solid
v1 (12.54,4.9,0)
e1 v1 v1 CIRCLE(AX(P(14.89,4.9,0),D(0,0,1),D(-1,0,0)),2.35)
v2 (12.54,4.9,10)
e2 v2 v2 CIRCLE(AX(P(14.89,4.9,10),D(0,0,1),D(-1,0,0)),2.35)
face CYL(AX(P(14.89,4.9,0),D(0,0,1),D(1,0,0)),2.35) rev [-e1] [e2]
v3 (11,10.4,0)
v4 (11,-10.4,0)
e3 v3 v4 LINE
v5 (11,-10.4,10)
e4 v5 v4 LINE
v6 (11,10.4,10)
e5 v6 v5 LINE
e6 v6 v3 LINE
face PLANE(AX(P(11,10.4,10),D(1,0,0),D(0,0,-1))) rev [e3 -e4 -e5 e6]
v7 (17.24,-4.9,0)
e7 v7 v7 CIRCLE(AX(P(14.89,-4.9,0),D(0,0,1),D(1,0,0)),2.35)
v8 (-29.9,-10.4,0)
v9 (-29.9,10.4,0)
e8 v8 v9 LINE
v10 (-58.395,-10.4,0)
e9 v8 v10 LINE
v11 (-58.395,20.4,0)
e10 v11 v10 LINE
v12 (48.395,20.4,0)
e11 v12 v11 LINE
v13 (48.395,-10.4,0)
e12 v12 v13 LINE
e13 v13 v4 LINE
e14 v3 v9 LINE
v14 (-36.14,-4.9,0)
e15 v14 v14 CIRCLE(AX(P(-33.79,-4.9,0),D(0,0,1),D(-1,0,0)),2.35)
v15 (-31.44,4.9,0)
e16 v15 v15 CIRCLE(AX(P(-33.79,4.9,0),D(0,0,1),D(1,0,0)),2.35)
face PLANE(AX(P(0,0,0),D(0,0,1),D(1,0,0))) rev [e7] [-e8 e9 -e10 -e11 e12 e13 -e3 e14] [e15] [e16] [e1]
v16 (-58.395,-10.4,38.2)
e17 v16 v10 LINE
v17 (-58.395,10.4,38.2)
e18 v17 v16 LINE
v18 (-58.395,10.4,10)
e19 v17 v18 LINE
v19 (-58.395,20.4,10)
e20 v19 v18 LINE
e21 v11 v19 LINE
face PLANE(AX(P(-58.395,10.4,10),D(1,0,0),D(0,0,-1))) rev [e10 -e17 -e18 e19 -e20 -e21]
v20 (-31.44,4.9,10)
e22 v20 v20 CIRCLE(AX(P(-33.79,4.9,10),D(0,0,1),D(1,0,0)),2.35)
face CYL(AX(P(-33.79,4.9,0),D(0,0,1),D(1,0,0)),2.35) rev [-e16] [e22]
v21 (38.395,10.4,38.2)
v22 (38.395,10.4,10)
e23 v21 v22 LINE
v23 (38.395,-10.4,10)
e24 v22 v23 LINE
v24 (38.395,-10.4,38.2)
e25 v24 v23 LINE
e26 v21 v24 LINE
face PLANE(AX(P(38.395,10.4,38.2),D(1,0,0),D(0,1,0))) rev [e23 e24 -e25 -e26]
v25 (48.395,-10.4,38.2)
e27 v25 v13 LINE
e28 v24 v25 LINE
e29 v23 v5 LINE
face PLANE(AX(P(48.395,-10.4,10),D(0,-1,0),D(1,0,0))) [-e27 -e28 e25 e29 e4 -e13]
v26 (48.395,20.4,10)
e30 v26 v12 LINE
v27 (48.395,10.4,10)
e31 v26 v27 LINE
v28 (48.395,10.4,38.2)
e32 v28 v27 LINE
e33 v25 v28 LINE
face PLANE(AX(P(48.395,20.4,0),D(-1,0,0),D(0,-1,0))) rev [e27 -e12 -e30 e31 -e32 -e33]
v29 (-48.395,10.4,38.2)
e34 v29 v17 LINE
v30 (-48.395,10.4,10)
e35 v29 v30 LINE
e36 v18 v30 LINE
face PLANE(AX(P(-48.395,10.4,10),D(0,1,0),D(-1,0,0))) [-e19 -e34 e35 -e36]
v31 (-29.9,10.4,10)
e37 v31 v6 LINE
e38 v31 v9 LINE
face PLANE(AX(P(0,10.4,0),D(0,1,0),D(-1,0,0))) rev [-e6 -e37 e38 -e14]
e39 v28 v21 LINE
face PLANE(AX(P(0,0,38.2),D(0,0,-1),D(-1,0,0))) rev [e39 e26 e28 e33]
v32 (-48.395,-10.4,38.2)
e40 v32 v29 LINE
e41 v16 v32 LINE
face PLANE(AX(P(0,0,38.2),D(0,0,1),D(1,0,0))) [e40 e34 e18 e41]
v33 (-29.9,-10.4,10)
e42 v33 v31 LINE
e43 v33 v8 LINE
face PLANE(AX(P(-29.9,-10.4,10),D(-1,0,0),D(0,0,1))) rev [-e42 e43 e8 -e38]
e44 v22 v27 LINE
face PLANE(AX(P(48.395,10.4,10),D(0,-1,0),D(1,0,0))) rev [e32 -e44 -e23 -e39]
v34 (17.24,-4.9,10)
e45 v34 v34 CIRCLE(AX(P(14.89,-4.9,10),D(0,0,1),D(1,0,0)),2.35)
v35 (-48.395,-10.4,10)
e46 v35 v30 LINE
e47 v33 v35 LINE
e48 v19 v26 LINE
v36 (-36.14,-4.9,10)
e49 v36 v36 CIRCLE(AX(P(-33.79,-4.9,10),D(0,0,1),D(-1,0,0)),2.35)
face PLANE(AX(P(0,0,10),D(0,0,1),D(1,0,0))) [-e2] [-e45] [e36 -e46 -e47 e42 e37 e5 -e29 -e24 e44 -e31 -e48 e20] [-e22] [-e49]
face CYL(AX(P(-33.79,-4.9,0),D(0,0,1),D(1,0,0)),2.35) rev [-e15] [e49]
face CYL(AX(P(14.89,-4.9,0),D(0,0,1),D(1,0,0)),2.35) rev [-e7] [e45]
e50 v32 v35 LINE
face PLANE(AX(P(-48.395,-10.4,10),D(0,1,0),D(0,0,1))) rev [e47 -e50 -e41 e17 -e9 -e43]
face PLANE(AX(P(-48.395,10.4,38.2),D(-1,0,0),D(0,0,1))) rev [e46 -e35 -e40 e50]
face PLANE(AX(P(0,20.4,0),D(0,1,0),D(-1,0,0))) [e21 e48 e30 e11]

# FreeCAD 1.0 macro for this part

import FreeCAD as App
import Part
import Sketcher

V = App.Vector
Q = App.Units.Quantity

doc = App.newDocument("Part")
body = doc.addObject("PartDesign::Body", "Body")
body.AllowCompound = True

sketch1 = doc.addObject("Sketcher::SketchObject", "Sketch")
body.addObject(sketch1)
sketch1.AttachmentSupport = (doc.XY_Plane, [""])
sketch1.MapMode = "FlatFace"
sketch1.addGeometry([
    Part.LineSegment(V(-30, -10, 0), V(-30, 10, 0)),
    Part.LineSegment(V(-30, 10, 0), V(-58, 10, 0)),
    Part.LineSegment(V(-58, 10, 0), V(-58, -10, 0)),
    Part.LineSegment(V(-58, -10, 0), V(-30, -10, 0)),
    Part.LineSegment(V(11, 10, 0), V(11, -10, 0)),
    Part.LineSegment(V(11, -10, 0), V(48, -10, 0)),
    Part.LineSegment(V(48, -10, 0), V(48, 10, 0)),
    Part.LineSegment(V(48, 10, 0), V(11, 10, 0)),
], False)
sketch1.addConstraint([
    Sketcher.Constraint("Coincident", 0, 2, 1, 1),
    Sketcher.Constraint("Coincident", 1, 2, 2, 1),
    Sketcher.Constraint("Coincident", 2, 2, 3, 1),
    Sketcher.Constraint("Coincident", 3, 2, 0, 1),
    Sketcher.Constraint("Coincident", 4, 2, 5, 1),
    Sketcher.Constraint("Coincident", 5, 2, 6, 1),
    Sketcher.Constraint("Coincident", 6, 2, 7, 1),
    Sketcher.Constraint("Coincident", 7, 2, 4, 1),
    Sketcher.Constraint("Vertical", 0),
    Sketcher.Constraint("Horizontal", 1),
    Sketcher.Constraint("Vertical", 2),
    Sketcher.Constraint("Horizontal", 3),
    Sketcher.Constraint("Vertical", 4),
    Sketcher.Constraint("Horizontal", 5),
    Sketcher.Constraint("Vertical", 6),
    Sketcher.Constraint("Horizontal", 7),
    Sketcher.Constraint("Horizontal", 3, 2, 4, 2),
    Sketcher.Constraint("Horizontal", 1, 2, 6, 2),
    Sketcher.Constraint("DistanceY", 0, 1, 0, 2, Q("20.8 mm")),
    Sketcher.Constraint("DistanceX", -1, 1, 4, 2, Q("11 mm")),
    Sketcher.Constraint("DistanceX", 0, 2, -1, 1, Q("29.9 mm")),
    Sketcher.Constraint("DistanceY", -1, 1, 0, 2, Q("10.4 mm")),
    Sketcher.Constraint("DistanceX", 1, 2, 1, 1, Q("28.495 mm")),
    Sketcher.Constraint("DistanceX", 5, 1, 5, 2, Q("37.395 mm")),
])
pad1 = doc.addObject("PartDesign::Pad", "Pad")
body.addObject(pad1)
pad1.Profile = sketch1
pad1.Length = 10

sketch2 = doc.addObject("Sketcher::SketchObject", "Sketch001")
body.addObject(sketch2)
sketch2.AttachmentSupport = (doc.XY_Plane, [""])
sketch2.MapMode = "FlatFace"
sketch2.AttachmentOffset = App.Placement(V(0, 0, 10), App.Rotation())
sketch2.addGeometry([
    Part.LineSegment(V(38, 10, 0), V(38, -10, 0)),
    Part.LineSegment(V(38, -10, 0), V(48, -10, 0)),
    Part.LineSegment(V(48, -10, 0), V(48, 10, 0)),
    Part.LineSegment(V(48, 10, 0), V(38, 10, 0)),
    Part.LineSegment(V(-58, 10, 0), V(-58, -10, 0)),
    Part.LineSegment(V(-58, -10, 0), V(-48, -10, 0)),
    Part.LineSegment(V(-48, -10, 0), V(-48, 10, 0)),
    Part.LineSegment(V(-48, 10, 0), V(-58, 10, 0)),
], False)
sketch2.addConstraint([
    Sketcher.Constraint("Coincident", 0, 2, 1, 1),
    Sketcher.Constraint("Coincident", 1, 2, 2, 1),
    Sketcher.Constraint("Coincident", 2, 2, 3, 1),
    Sketcher.Constraint("Coincident", 3, 2, 0, 1),
    Sketcher.Constraint("Coincident", 4, 2, 5, 1),
    Sketcher.Constraint("Coincident", 5, 2, 6, 1),
    Sketcher.Constraint("Coincident", 6, 2, 7, 1),
    Sketcher.Constraint("Coincident", 7, 2, 4, 1),
    Sketcher.Constraint("Vertical", 0),
    Sketcher.Constraint("Horizontal", 1),
    Sketcher.Constraint("Vertical", 2),
    Sketcher.Constraint("Horizontal", 3),
    Sketcher.Constraint("Vertical", 4),
    Sketcher.Constraint("Horizontal", 5),
    Sketcher.Constraint("Vertical", 6),
    Sketcher.Constraint("Horizontal", 7),
    Sketcher.Constraint("Symmetric", 2, 2, 5, 2, -1, 1),
    Sketcher.Constraint("Horizontal", 1, 2, 4, 2),
    Sketcher.Constraint("Horizontal", 3, 2, 6, 2),
    Sketcher.Constraint("Equal", 3, 5),
    Sketcher.Constraint("DistanceX", 1, 1, 1, 2, Q("10 mm")),
    Sketcher.Constraint("DistanceY", 0, 2, 0, 1, Q("20.8 mm")),
    Sketcher.Constraint("DistanceX", 4, 2, 0, 2, Q("96.79 mm")),
])
pad2 = doc.addObject("PartDesign::Pad", "Pad001")
body.addObject(pad2)
pad2.Profile = sketch2
pad2.Length = 28.2

sketch3 = doc.addObject("Sketcher::SketchObject", "Sketch002")
body.addObject(sketch3)
sketch3.AttachmentSupport = (doc.XZ_Plane, [""])
sketch3.MapMode = "FlatFace"
sketch3.AttachmentOffset = App.Placement(V(0, 0, -10.4), App.Rotation())
sketch3.addGeometry([
    Part.LineSegment(V(-58, 0, 0), V(-58, 10, 0)),
    Part.LineSegment(V(-58, 10, 0), V(48, 10, 0)),
    Part.LineSegment(V(48, 10, 0), V(48, 0, 0)),
    Part.LineSegment(V(48, 0, 0), V(-58, 0, 0)),
], False)
sketch3.addConstraint([
    Sketcher.Constraint("Coincident", 0, 2, 1, 1),
    Sketcher.Constraint("Coincident", 1, 2, 2, 1),
    Sketcher.Constraint("Coincident", 2, 2, 3, 1),
    Sketcher.Constraint("Coincident", 3, 2, 0, 1),
    Sketcher.Constraint("Vertical", 0),
    Sketcher.Constraint("Horizontal", 1),
    Sketcher.Constraint("Vertical", 2),
    Sketcher.Constraint("Horizontal", 3),
    Sketcher.Constraint("PointOnObject", 2, 2, -1),
    Sketcher.Constraint("DistanceY", 0, 1, 0, 2, Q("10 mm")),
    Sketcher.Constraint("DistanceX", 1, 1, 1, 2, Q("106.79 mm")),
    Sketcher.Constraint("DistanceX", 0, 2, -1, 1, Q("58.395 mm")),
])
pad3 = doc.addObject("PartDesign::Pad", "Pad002")
body.addObject(pad3)
pad3.Profile = sketch3
pad3.Length = 10
pad3.Reversed = True

sketch4 = doc.addObject("Sketcher::SketchObject", "Sketch003")
body.addObject(sketch4)
sketch4.AttachmentSupport = (doc.XY_Plane, [""])
sketch4.MapMode = "FlatFace"
sketch4.AttachmentOffset = App.Placement(V(0, 0, 10), App.Rotation())
sketch4.addGeometry([
    Part.Circle(V(14.9, -4.9, 0), V(0, 0, 1), 2.4),
    Part.Circle(V(14.9, 4.9, 0), V(0, 0, 1), 2.4),
    Part.Circle(V(-33.8, -4.9, 0), V(0, 0, 1), 2.4),
    Part.Circle(V(-33.8, 4.9, 0), V(0, 0, 1), 2.4),
], False)
sketch4.addConstraint([
    Sketcher.Constraint("Equal", 0, 1),
    Sketcher.Constraint("Equal", 1, 2),
    Sketcher.Constraint("Equal", 2, 3),
    Sketcher.Constraint("Symmetric", 0, 3, 1, 3, -1),
    Sketcher.Constraint("Symmetric", 2, 3, 3, 3, -1),
    Sketcher.Constraint("Horizontal", 0, 3, 2, 3),
    Sketcher.Constraint("Diameter", 0, Q("4.7 mm")),
    Sketcher.Constraint("DistanceY", 0, 3, -1, 1, Q("4.9 mm")),
    Sketcher.Constraint("DistanceX", -1, 1, 0, 3, Q("14.89 mm")),
    Sketcher.Constraint("DistanceX", 2, 3, -1, 1, Q("33.79 mm")),
])
pocket1 = doc.addObject("PartDesign::Pocket", "Pocket")
body.addObject(pocket1)
pocket1.Profile = sketch4
pocket1.Length = 10

doc.recompute()
